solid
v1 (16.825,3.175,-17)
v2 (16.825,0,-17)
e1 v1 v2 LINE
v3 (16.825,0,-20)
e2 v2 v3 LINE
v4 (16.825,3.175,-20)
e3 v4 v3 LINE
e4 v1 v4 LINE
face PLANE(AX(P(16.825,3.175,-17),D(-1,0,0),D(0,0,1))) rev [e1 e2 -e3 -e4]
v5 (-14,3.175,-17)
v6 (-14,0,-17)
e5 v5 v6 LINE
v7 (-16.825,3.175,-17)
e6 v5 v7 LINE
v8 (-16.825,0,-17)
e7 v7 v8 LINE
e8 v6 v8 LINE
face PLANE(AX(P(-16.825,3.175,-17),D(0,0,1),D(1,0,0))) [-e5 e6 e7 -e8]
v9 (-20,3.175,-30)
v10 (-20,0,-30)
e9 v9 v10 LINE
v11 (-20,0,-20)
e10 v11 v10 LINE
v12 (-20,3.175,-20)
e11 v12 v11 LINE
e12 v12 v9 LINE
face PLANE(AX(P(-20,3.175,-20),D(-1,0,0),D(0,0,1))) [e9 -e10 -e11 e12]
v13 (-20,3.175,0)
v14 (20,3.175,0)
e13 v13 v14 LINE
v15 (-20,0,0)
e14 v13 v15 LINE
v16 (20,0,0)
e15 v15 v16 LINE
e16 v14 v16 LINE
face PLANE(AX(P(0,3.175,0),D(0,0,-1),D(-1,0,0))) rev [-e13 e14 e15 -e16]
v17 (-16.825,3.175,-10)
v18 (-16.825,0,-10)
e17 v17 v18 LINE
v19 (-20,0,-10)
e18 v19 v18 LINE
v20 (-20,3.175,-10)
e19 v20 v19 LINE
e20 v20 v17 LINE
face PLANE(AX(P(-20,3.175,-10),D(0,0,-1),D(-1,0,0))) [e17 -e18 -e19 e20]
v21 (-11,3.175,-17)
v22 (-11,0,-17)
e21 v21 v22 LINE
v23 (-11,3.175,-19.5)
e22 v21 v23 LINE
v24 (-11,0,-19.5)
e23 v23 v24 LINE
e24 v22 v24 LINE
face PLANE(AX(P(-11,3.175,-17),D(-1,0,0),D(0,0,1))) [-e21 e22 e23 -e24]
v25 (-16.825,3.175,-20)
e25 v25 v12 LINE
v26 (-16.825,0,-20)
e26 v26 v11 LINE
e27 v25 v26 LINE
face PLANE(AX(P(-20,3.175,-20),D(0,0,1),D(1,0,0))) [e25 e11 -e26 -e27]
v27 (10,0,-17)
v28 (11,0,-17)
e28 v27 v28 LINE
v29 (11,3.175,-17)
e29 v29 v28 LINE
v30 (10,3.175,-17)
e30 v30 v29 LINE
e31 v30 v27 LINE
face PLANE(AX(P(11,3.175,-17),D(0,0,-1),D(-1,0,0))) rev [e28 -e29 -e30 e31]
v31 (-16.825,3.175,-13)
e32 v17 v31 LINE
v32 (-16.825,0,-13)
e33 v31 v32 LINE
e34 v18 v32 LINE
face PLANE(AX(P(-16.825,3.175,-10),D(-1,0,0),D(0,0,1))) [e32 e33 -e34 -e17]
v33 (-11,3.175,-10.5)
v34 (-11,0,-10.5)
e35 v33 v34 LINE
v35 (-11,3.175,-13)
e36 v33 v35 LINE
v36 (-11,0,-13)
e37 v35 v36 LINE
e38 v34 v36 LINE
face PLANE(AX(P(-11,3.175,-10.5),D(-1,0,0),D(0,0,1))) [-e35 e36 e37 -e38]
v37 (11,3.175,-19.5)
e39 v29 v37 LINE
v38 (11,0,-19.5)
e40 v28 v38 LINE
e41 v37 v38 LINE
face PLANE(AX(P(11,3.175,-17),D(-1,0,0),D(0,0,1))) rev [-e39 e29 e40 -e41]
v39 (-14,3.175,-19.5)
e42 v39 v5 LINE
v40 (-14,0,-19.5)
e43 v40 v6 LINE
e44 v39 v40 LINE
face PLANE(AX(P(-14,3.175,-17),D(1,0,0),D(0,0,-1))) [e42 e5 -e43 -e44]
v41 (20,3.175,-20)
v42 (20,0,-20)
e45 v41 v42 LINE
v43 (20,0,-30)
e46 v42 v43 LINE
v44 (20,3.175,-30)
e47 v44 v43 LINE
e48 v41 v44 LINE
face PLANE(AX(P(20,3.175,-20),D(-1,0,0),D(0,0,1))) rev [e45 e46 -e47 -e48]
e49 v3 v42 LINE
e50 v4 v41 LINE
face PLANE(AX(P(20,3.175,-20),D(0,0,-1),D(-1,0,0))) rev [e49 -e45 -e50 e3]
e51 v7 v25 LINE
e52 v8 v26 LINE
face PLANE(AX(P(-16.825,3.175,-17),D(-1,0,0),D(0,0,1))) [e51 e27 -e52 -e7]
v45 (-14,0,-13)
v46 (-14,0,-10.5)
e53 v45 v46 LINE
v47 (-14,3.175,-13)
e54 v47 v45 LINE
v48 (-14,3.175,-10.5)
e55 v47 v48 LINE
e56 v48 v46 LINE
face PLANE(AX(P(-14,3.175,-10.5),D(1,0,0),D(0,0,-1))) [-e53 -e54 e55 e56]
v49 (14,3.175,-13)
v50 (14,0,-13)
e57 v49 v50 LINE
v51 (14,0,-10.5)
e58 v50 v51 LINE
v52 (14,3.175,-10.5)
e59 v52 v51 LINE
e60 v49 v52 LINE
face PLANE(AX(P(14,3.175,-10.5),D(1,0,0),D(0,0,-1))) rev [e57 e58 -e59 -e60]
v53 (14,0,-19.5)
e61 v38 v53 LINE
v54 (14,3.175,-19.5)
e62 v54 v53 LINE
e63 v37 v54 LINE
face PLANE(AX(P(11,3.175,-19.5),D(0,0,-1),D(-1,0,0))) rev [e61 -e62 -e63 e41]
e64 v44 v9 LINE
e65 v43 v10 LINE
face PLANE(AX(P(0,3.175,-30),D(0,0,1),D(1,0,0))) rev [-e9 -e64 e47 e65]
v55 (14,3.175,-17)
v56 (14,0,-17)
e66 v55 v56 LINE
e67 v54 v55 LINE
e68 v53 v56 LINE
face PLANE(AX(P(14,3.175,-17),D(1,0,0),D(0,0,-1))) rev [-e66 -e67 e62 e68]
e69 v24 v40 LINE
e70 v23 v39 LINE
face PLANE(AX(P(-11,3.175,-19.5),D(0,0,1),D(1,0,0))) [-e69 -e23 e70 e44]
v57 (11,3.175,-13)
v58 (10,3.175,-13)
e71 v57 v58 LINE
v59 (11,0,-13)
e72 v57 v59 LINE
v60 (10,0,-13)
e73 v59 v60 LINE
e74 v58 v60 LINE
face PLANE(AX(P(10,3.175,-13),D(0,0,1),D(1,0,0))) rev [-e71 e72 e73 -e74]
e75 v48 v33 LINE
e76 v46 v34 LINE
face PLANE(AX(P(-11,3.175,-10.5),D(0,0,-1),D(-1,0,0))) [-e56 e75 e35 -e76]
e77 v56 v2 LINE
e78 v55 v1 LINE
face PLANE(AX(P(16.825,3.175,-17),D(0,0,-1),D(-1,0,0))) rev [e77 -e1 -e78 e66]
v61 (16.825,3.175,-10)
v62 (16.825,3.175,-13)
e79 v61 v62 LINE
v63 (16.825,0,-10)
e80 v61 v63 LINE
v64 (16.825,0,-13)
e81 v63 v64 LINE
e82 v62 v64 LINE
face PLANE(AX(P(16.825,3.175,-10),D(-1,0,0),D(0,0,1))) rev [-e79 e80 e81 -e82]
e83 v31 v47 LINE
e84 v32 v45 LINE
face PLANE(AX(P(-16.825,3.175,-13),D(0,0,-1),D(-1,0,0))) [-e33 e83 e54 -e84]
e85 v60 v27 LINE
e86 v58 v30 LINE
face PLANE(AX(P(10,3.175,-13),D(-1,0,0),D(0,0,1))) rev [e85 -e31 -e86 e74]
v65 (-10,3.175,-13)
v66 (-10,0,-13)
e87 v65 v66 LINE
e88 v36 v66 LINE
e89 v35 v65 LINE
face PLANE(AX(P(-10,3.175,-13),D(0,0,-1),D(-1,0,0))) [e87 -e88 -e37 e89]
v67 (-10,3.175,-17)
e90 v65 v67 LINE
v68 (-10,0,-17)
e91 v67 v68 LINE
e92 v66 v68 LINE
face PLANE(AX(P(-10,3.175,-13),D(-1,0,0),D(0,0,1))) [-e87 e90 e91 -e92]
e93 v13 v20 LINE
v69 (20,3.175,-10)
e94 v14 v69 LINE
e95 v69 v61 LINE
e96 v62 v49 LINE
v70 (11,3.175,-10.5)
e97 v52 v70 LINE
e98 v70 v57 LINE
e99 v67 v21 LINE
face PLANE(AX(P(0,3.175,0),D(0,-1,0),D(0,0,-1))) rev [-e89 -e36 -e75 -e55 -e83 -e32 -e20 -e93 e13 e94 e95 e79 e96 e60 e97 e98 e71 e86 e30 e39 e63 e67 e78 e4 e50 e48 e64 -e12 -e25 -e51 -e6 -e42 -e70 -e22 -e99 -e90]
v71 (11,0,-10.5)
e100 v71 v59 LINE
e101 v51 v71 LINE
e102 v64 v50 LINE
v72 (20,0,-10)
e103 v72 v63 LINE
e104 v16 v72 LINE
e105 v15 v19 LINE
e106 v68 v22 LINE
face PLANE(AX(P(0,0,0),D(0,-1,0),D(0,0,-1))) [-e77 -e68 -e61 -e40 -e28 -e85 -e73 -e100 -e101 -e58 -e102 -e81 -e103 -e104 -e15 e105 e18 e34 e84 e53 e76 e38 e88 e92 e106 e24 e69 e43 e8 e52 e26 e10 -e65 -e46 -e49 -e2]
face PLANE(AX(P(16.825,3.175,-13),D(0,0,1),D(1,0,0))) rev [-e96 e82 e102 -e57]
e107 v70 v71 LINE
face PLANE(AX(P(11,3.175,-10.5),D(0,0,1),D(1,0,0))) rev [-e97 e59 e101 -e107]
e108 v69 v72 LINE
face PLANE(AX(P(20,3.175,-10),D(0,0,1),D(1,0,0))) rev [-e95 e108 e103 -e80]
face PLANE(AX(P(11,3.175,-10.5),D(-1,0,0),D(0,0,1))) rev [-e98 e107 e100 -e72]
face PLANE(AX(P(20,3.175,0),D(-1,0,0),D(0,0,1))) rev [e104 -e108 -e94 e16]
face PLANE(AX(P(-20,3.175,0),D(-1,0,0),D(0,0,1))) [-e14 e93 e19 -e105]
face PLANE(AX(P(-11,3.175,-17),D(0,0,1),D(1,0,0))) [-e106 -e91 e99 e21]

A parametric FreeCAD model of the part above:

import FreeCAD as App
import Part
import Sketcher
from FreeCAD import Vector
Q = App.Units.Quantity

doc = App.newDocument("Part")
body = doc.addObject("PartDesign::Body", "Body")

# Sketch on XZ plane
sketch1 = body.newObject("Sketcher::SketchObject", "Sketch")
sketch1.AttachmentSupport = (doc.getObject("XZ_Plane"), [""])
sketch1.MapMode = "FlatFace"
sketch1.addGeometry(Part.LineSegment(Vector(20, -20, 0), Vector(20, -30, 0)), False)
sketch1.addGeometry(Part.LineSegment(Vector(20, -30, 0), Vector(0, -30, 0)), False)
sketch1.addGeometry(Part.LineSegment(Vector(0, -30, 0), Vector(0, 0, 0)), False)
sketch1.addGeometry(Part.LineSegment(Vector(0, 0, 0), Vector(20, 0, 0)), False)
sketch1.addGeometry(Part.LineSegment(Vector(20, 0, 0), Vector(20, -10, 0)), False)
sketch1.addGeometry(Part.LineSegment(Vector(20, -10, 0), Vector(16.825, -10, 0)), False)
sketch1.addGeometry(Part.LineSegment(Vector(16.825, -10, 0), Vector(16.825, -13, 0)), False)
sketch1.addGeometry(Part.LineSegment(Vector(16.825, -13, 0), Vector(14, -13, 0)), False)
sketch1.addGeometry(Part.LineSegment(Vector(14, -13, 0), Vector(14, -10.5, 0)), False)
sketch1.addGeometry(Part.LineSegment(Vector(14, -10.5, 0), Vector(11, -10.5, 0)), False)
sketch1.addGeometry(Part.LineSegment(Vector(11, -10.5, 0), Vector(11, -13, 0)), False)
sketch1.addGeometry(Part.LineSegment(Vector(11, -13, 0), Vector(10, -13, 0)), False)
sketch1.addGeometry(Part.LineSegment(Vector(10, -13, 0), Vector(10, -17, 0)), False)
sketch1.addGeometry(Part.LineSegment(Vector(10, -17, 0), Vector(11, -17, 0)), False)
sketch1.addGeometry(Part.LineSegment(Vector(11, -17, 0), Vector(11, -19.5, 0)), False)
sketch1.addGeometry(Part.LineSegment(Vector(11, -19.5, 0), Vector(14, -19.5, 0)), False)
sketch1.addGeometry(Part.LineSegment(Vector(14, -19.5, 0), Vector(14, -17, 0)), False)
sketch1.addGeometry(Part.LineSegment(Vector(14, -17, 0), Vector(16.825, -17, 0)), False)
sketch1.addGeometry(Part.LineSegment(Vector(16.825, -17, 0), Vector(16.825, -20, 0)), False)
sketch1.addGeometry(Part.LineSegment(Vector(16.825, -20, 0), Vector(20, -20, 0)), False)
sketch1.addConstraint(Sketcher.Constraint("Coincident", 0, 2, 1, 1))
sketch1.addConstraint(Sketcher.Constraint("Coincident", 1, 2, 2, 1))
sketch1.addConstraint(Sketcher.Constraint("Coincident", 2, 2, 3, 1))
sketch1.addConstraint(Sketcher.Constraint("Coincident", 3, 2, 4, 1))
sketch1.addConstraint(Sketcher.Constraint("Coincident", 4, 2, 5, 1))
sketch1.addConstraint(Sketcher.Constraint("Coincident", 5, 2, 6, 1))
sketch1.addConstraint(Sketcher.Constraint("Coincident", 6, 2, 7, 1))
sketch1.addConstraint(Sketcher.Constraint("Coincident", 7, 2, 8, 1))
sketch1.addConstraint(Sketcher.Constraint("Coincident", 8, 2, 9, 1))
sketch1.addConstraint(Sketcher.Constraint("Coincident", 9, 2, 10, 1))
sketch1.addConstraint(Sketcher.Constraint("Coincident", 10, 2, 11, 1))
sketch1.addConstraint(Sketcher.Constraint("Coincident", 11, 2, 12, 1))
sketch1.addConstraint(Sketcher.Constraint("Coincident", 12, 2, 13, 1))
sketch1.addConstraint(Sketcher.Constraint("Coincident", 13, 2, 14, 1))
sketch1.addConstraint(Sketcher.Constraint("Coincident", 14, 2, 15, 1))
sketch1.addConstraint(Sketcher.Constraint("Coincident", 15, 2, 16, 1))
sketch1.addConstraint(Sketcher.Constraint("Coincident", 16, 2, 17, 1))
sketch1.addConstraint(Sketcher.Constraint("Coincident", 17, 2, 18, 1))
sketch1.addConstraint(Sketcher.Constraint("Coincident", 18, 2, 19, 1))
sketch1.addConstraint(Sketcher.Constraint("Coincident", 19, 2, 0, 1))
sketch1.addConstraint(Sketcher.Constraint("Vertical", 0))
sketch1.addConstraint(Sketcher.Constraint("Horizontal", 1))
sketch1.addConstraint(Sketcher.Constraint("Vertical", 2))
sketch1.addConstraint(Sketcher.Constraint("Horizontal", 3))
sketch1.addConstraint(Sketcher.Constraint("Vertical", 4))
sketch1.addConstraint(Sketcher.Constraint("Horizontal", 5))
sketch1.addConstraint(Sketcher.Constraint("Vertical", 6))
sketch1.addConstraint(Sketcher.Constraint("Horizontal", 7))
sketch1.addConstraint(Sketcher.Constraint("Vertical", 8))
sketch1.addConstraint(Sketcher.Constraint("Horizontal", 9))
sketch1.addConstraint(Sketcher.Constraint("Vertical", 10))
sketch1.addConstraint(Sketcher.Constraint("Horizontal", 11))
sketch1.addConstraint(Sketcher.Constraint("Vertical", 12))
sketch1.addConstraint(Sketcher.Constraint("Horizontal", 13))
sketch1.addConstraint(Sketcher.Constraint("Vertical", 14))
sketch1.addConstraint(Sketcher.Constraint("Horizontal", 15))
sketch1.addConstraint(Sketcher.Constraint("Vertical", 16))
sketch1.addConstraint(Sketcher.Constraint("Horizontal", 17))
sketch1.addConstraint(Sketcher.Constraint("Vertical", 18))
sketch1.addConstraint(Sketcher.Constraint("Horizontal", 19))
sketch1.addConstraint(Sketcher.Constraint("Coincident", 2, 2, -1, 1))
sketch1.addConstraint(Sketcher.Constraint("Horizontal", 7, 2, 10, 2))
sketch1.addConstraint(Sketcher.Constraint("Horizontal", 13, 2, 16, 2))
sketch1.addConstraint(Sketcher.Constraint("Vertical", 0, 2, 3, 2))
sketch1.addConstraint(Sketcher.Constraint("Vertical", 10, 2, 13, 2))
sketch1.addConstraint(Sketcher.Constraint("Vertical", 8, 2, 15, 2))
sketch1.addConstraint(Sketcher.Constraint("Vertical", 6, 2, 17, 2))
sketch1.addConstraint(Sketcher.Constraint("Equal", 0, 4))
sketch1.addConstraint(Sketcher.Constraint("Equal", 15, 6))
sketch1.addConstraint(Sketcher.Constraint("Equal", 10, 14))
sketch1.addConstraint(Sketcher.Constraint("Equal", 6, 18))
sketch1.addConstraint(Sketcher.Constraint("DistanceX", 1, 2, 1, 1, Q("20 mm")))
sketch1.addConstraint(Sketcher.Constraint("DistanceX", 9, 2, 9, 1, Q("3 mm")))
sketch1.addConstraint(Sketcher.Constraint("DistanceX", 11, 2, 11, 1, Q("1 mm")))
sketch1.addConstraint(Sketcher.Constraint("DistanceY", 0, 2, 0, 1, Q("10 mm")))
sketch1.addConstraint(Sketcher.Constraint("DistanceY", 2, 1, 2, 2, Q("30 mm")))
sketch1.addConstraint(Sketcher.Constraint("DistanceY", 8, 1, 8, 2, Q("2.5 mm")))
sketch1.addConstraint(Sketcher.Constraint("DistanceX", -1, 1, 7, 2, Q("14 mm")))
sketch1.addConstraint(Sketcher.Constraint("DistanceX", 5, 2, 5, 1, Q("3.175 mm")))
pad1 = body.newObject("PartDesign::Pad", "Pad")
pad1.Profile = sketch1
pad1.Length = 3.175
pad1.Reversed = True
doc.recompute()

mirrored = body.newObject("PartDesign::Mirrored", "Mirrored")
mirrored.Originals = [pad1]
mirrored.MirrorPlane = (doc.getObject("YZ_Plane"), [""])
body.Tip = mirrored

doc.recompute()
